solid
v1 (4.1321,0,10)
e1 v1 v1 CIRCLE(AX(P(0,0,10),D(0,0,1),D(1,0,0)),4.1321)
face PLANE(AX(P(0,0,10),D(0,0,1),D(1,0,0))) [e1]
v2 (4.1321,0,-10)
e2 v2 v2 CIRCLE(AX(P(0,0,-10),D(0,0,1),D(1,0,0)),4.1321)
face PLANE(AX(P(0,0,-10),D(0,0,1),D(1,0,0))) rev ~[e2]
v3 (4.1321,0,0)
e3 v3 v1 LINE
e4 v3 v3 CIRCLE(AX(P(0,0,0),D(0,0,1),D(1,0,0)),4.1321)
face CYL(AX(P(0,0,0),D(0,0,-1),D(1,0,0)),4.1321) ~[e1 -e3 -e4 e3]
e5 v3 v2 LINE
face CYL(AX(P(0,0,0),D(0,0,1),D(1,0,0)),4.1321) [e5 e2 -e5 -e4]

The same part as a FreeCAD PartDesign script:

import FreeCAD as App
import Part
import Sketcher

V = App.Vector

doc = App.newDocument("Part")
body = doc.addObject("PartDesign::Body", "Body")

# Sketch on XY plane
sketch1 = body.newObject("Sketcher::SketchObject", "Sketch")
sketch1.AttachmentSupport = (doc.getObject("XY_Plane"), [""])
sketch1.MapMode = "FlatFace"
sketch1.addGeometry(Part.Circle(V(0, 0, 0), V(0, 0, 1), 4.1), False)
sketch1.addConstraint([
    Sketcher.Constraint("Coincident", 0, 3, -1, 1),
    Sketcher.Constraint("Diameter", 0, 8.2642),
])
pad1 = body.newObject("PartDesign::Pad", "Pad")
pad1.Profile = sketch1
pad1.Length = 20
pad1.Midplane = True

doc.recompute()
